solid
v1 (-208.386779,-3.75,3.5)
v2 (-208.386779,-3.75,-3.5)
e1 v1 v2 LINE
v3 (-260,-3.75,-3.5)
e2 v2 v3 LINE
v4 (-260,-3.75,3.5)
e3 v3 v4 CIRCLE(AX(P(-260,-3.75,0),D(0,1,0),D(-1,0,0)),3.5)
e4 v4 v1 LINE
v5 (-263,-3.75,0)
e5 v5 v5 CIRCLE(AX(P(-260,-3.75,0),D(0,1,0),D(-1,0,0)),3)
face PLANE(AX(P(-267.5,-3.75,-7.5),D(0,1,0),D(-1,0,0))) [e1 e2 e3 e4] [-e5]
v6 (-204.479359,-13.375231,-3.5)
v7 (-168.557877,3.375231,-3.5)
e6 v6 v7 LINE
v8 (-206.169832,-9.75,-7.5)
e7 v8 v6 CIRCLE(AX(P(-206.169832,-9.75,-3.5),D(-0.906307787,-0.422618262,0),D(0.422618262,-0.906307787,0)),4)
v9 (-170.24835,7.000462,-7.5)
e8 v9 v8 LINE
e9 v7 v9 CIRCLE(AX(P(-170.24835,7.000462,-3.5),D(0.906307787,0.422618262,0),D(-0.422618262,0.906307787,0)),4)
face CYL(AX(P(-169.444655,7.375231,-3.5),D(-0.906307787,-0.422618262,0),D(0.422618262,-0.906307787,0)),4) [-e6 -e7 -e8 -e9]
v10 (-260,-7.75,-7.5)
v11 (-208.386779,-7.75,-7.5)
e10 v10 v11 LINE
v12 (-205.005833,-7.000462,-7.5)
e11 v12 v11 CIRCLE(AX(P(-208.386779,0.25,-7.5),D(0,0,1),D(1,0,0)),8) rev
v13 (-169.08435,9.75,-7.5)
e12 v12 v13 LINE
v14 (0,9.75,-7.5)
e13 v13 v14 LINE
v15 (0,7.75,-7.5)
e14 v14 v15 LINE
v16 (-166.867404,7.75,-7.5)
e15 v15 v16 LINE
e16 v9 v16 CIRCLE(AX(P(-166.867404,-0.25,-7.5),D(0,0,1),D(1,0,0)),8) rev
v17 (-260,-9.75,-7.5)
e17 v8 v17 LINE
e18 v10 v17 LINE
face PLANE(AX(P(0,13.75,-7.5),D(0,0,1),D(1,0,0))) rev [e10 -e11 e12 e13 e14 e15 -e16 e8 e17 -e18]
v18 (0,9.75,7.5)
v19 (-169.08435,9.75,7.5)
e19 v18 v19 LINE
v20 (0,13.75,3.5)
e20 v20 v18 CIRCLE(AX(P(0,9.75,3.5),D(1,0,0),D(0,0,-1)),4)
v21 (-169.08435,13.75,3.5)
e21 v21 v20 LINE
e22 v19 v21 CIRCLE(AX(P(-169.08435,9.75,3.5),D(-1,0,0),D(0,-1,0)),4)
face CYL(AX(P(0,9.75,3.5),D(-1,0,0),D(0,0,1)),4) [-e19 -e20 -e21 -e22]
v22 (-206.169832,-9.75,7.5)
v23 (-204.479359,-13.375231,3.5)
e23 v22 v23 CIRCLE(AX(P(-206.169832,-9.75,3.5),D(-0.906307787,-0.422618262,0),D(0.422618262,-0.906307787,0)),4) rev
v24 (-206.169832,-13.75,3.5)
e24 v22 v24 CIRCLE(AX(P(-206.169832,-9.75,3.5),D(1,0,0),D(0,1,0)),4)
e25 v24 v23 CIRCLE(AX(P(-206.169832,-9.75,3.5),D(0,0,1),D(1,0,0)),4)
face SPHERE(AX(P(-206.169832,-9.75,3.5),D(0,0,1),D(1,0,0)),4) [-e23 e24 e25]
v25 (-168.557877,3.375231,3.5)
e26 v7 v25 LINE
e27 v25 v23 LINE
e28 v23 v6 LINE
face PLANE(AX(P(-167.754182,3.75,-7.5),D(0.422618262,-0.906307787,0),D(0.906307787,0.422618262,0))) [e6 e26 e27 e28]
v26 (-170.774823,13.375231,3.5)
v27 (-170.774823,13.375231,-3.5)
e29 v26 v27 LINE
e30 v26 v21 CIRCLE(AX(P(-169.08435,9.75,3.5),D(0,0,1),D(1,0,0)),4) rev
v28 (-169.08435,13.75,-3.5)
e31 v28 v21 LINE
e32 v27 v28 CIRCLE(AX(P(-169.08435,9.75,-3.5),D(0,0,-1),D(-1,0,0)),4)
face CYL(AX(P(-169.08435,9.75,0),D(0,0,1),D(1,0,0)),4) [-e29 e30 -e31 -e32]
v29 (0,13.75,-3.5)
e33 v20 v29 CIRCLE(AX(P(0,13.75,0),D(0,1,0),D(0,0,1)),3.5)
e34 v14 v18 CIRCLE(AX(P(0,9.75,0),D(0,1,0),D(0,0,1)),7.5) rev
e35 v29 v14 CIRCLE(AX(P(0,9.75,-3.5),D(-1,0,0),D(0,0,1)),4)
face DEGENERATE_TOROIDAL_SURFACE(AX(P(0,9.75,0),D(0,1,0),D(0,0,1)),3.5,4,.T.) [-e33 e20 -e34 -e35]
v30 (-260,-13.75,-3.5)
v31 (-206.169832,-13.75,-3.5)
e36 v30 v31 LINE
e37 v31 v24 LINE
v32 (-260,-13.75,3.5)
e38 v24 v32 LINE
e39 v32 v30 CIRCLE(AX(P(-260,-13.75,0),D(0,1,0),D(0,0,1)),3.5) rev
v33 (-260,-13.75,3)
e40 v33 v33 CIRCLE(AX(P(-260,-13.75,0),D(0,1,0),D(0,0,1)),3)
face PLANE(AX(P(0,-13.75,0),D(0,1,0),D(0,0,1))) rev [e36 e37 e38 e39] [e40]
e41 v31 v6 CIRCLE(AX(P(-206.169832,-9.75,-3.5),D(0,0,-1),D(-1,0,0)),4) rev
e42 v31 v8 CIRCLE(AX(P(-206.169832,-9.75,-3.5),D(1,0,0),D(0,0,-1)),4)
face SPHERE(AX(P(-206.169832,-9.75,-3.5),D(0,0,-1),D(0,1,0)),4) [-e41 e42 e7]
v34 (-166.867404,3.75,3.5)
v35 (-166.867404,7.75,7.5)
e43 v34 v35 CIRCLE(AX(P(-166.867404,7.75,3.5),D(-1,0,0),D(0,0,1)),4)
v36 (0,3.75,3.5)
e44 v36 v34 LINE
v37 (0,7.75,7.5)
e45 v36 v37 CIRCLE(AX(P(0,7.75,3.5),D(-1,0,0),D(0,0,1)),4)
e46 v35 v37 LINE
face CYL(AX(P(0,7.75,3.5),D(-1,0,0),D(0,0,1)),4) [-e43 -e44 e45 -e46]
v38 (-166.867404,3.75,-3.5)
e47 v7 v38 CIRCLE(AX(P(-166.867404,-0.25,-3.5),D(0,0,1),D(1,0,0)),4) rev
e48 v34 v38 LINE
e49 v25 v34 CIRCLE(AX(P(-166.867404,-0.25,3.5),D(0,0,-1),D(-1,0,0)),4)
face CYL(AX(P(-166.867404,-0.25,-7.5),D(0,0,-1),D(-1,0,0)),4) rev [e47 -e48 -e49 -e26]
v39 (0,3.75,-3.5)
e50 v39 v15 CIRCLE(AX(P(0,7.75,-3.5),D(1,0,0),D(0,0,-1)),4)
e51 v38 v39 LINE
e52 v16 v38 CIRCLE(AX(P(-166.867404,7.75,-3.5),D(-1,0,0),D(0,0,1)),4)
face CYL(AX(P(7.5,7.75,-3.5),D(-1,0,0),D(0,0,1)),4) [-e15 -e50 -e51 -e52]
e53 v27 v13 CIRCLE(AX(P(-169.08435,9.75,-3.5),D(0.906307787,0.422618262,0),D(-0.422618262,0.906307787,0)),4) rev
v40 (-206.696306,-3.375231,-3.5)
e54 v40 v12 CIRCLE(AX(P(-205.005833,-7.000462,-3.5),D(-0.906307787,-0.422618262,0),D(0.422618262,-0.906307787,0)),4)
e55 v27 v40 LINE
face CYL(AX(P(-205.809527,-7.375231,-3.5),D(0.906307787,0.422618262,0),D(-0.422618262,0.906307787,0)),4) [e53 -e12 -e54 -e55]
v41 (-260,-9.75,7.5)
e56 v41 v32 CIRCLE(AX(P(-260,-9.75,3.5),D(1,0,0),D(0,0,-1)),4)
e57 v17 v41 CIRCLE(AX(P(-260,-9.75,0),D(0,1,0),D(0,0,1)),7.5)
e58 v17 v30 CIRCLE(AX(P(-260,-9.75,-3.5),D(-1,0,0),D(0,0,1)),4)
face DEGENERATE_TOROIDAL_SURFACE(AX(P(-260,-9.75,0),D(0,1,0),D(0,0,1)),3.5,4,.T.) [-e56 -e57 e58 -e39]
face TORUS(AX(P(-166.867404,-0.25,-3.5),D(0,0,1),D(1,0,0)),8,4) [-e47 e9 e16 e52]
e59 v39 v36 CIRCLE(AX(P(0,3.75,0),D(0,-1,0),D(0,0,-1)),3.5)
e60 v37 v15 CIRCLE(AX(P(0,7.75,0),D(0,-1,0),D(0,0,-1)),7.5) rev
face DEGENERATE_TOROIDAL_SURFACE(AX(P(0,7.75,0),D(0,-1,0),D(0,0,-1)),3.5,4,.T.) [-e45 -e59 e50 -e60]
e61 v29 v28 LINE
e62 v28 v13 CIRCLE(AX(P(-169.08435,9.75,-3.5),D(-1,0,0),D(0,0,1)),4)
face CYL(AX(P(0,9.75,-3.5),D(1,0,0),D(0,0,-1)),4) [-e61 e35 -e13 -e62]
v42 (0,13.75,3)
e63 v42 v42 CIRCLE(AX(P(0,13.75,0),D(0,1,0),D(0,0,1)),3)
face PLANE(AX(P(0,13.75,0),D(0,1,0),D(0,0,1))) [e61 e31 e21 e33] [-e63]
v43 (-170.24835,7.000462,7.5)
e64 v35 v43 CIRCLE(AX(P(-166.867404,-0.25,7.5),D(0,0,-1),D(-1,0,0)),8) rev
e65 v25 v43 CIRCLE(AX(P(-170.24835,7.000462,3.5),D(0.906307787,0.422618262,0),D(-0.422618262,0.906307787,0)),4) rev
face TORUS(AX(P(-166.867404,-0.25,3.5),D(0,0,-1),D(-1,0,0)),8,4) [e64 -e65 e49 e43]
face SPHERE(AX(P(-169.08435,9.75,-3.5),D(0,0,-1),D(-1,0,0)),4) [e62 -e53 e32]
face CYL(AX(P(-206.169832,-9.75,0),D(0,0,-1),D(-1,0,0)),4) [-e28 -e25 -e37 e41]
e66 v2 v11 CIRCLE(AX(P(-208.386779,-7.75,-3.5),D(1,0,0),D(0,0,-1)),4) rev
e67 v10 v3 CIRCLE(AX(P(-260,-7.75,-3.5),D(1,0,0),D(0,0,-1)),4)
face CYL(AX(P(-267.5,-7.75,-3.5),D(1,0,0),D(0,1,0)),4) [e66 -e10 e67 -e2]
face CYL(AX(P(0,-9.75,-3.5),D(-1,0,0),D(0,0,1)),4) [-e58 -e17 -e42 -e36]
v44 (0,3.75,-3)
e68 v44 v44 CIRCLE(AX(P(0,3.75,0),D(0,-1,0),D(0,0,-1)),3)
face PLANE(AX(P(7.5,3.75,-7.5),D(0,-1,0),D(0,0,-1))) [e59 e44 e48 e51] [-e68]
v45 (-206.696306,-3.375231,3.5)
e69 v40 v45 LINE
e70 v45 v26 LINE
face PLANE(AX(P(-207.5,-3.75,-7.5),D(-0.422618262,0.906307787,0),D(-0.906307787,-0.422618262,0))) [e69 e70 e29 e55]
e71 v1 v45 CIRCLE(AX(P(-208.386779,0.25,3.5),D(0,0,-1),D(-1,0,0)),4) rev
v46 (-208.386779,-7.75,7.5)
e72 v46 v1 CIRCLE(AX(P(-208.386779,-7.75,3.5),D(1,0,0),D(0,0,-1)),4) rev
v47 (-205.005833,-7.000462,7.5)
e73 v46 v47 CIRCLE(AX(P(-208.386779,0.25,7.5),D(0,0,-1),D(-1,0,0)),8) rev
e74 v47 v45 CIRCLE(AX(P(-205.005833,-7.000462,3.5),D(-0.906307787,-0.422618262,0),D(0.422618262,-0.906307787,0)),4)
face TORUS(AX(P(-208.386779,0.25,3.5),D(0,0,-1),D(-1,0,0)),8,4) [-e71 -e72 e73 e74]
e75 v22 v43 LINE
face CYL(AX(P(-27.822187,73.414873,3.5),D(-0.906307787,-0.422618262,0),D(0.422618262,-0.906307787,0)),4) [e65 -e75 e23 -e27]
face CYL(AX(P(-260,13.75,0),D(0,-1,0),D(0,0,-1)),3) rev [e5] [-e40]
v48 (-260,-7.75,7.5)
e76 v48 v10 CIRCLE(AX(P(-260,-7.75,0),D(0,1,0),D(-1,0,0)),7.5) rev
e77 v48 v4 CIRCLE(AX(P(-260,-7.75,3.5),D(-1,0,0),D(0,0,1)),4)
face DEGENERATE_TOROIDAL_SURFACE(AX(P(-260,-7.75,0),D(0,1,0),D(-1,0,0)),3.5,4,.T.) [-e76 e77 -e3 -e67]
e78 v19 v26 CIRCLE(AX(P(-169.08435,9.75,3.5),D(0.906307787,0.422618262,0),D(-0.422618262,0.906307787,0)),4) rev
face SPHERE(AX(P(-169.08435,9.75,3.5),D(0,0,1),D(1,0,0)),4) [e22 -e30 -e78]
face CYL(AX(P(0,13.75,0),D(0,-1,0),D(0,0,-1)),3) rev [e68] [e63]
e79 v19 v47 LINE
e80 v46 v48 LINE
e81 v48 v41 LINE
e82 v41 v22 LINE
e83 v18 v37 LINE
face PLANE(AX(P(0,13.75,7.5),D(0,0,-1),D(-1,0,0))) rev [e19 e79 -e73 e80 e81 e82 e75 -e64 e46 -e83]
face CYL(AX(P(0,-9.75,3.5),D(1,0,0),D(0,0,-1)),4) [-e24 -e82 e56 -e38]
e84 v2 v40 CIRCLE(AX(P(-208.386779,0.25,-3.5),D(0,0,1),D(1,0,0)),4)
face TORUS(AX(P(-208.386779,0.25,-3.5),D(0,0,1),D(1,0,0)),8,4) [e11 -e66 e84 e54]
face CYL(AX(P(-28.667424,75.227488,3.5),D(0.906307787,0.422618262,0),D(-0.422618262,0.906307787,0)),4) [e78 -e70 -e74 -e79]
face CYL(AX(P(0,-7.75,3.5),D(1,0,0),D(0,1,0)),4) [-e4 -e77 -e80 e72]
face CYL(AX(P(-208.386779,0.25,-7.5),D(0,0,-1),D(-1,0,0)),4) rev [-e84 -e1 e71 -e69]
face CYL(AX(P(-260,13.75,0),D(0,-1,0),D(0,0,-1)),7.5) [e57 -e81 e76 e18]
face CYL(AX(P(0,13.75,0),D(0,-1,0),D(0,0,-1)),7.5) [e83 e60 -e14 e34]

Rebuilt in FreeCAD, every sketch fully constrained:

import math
import FreeCAD as App
import Part
import Sketcher
from FreeCAD import Vector
Q = App.Units.Quantity


def edges_at(feature, points):
    """Names of the edges that pass closest to the given points."""
    edges = feature.Shape.Edges
    near = lambda p: min(range(len(edges)), key=lambda i: edges[i].distToShape(Part.Vertex(*p))[0])
    return sorted({f"Edge{near(p) + 1}" for p in points})


def add_polygon(sketch, points):
    """Adds a closed chain of lines whose ends are joined by coincident constraints."""
    first, n = sketch.GeometryCount, len(points)
    for a, b in zip(points, points[1:] + points[:1]):
        sketch.addGeometry(Part.LineSegment(App.Vector(*a, 0), App.Vector(*b, 0)), False)
    for i in range(n):
        sketch.addConstraint(Sketcher.Constraint("Coincident", first + i, 2, first + (i + 1) % n, 1))

doc = App.newDocument("Part")
params = doc.addObject("Spreadsheet::Sheet", "Params")
for row, (alias, value) in enumerate([
    ("sketch1_diameter", "6 mm"),
    ("sketch1_radius", "7.5 mm"),
    ("sketch1_width", "260 mm"),
    ("pad1_length", "27.5 mm"),
    ("sketch2_width", "60 mm"),
    ("sketch2_height", "10 mm"),
    ("fillet_radius", "4 mm"),
], start=1):
    params.set(f"A{row}", alias)
    params.set(f"B{row}", "=" + value)
    params.setAlias(f"B{row}", alias)

body = doc.addObject("PartDesign::Body", "Body")

# Sketch on XZ plane
sketch1 = doc.addObject("Sketcher::SketchObject", "Sketch")
body.addObject(sketch1)
sketch1.AttachmentSupport = (doc.XZ_Plane, [""])
sketch1.MapMode = "FlatFace"
sketch1.addGeometry(Part.LineSegment(Vector(-260, 7.5, 0), Vector(0, 7.5, 0)), False)
sketch1.addGeometry(Part.ArcOfCircle(Part.Circle(Vector(0, 0, 0), Vector(0, 0, 1), 7.5), math.radians(-90), math.radians(90)), False)
sketch1.addGeometry(Part.LineSegment(Vector(0, -7.5, 0), Vector(-260, -7.5, 0)), False)
sketch1.addGeometry(Part.ArcOfCircle(Part.Circle(Vector(-260, 0, 0), Vector(0, 0, 1), 7.5), math.radians(90), math.radians(270)), False)
sketch1.addGeometry(Part.Circle(Vector(-260, 0, 0), Vector(0, 0, 1), 3), False)
sketch1.addGeometry(Part.Circle(Vector(0, 0, 0), Vector(0, 0, 1), 3), False)
sketch1.addConstraint(Sketcher.Constraint("Tangent", 0, 2, 1, 2))
sketch1.addConstraint(Sketcher.Constraint("Tangent", 1, 1, 2, 1))
sketch1.addConstraint(Sketcher.Constraint("Tangent", 2, 2, 3, 2))
sketch1.addConstraint(Sketcher.Constraint("Tangent", 3, 1, 0, 1))
sketch1.addConstraint(Sketcher.Constraint("Horizontal", 0))
sketch1.addConstraint(Sketcher.Constraint("Horizontal", 2))
sketch1.addConstraint(Sketcher.Constraint("Coincident", 1, 3, -1, 1))
sketch1.addConstraint(Sketcher.Constraint("Coincident", 5, 3, -1, 1))
sketch1.addConstraint(Sketcher.Constraint("Coincident", 4, 3, 3, 3))
sketch1.addConstraint(Sketcher.Constraint("Equal", 4, 5))
sketch1.addConstraint(Sketcher.Constraint("Diameter", 4, 6.0))
sketch1.addConstraint(Sketcher.Constraint("Radius", 1, 7.5))
sketch1.addConstraint(Sketcher.Constraint("DistanceX", 0, 1, 0, 2, 260.0))
sketch1.setExpression("Constraints[10]", "Params.sketch1_diameter")
sketch1.setExpression("Constraints[11]", "Params.sketch1_radius")
sketch1.setExpression("Constraints[12]", "Params.sketch1_width")
pad1 = doc.addObject("PartDesign::Pad", "Pad")
body.addObject(pad1)
pad1.Profile = sketch1
pad1.setExpression("Length", "Params.pad1_length")
pad1.Midplane = True

# Sketch on XY plane
sketch2 = doc.addObject("Sketcher::SketchObject", "Sketch001")
body.addObject(sketch2)
sketch2.AttachmentSupport = (doc.XY_Plane, [""])
sketch2.MapMode = "FlatFace"
add_polygon(sketch2, [(-296, -42), (36, -42), (36, 42), (-296, 42)])  # lines 0-3
add_polygon(sketch2, [(-208, -4), (-170, 14), (8, 14), (8, 4), (-168, 4), (-205, -14), (-268, -14), (-268, -4)])  # lines 4-11
sketch2.addConstraint(Sketcher.Constraint("Horizontal", 0))
sketch2.addConstraint(Sketcher.Constraint("Vertical", 1))
sketch2.addConstraint(Sketcher.Constraint("Horizontal", 2))
sketch2.addConstraint(Sketcher.Constraint("Vertical", 3))
sketch2.addConstraint(Sketcher.Constraint("Horizontal", 5))
sketch2.addConstraint(Sketcher.Constraint("Vertical", 6))
sketch2.addConstraint(Sketcher.Constraint("Horizontal", 7))
sketch2.addConstraint(Sketcher.Constraint("Horizontal", 9))
sketch2.addConstraint(Sketcher.Constraint("Vertical", 10))
sketch2.addConstraint(Sketcher.Constraint("Horizontal", 11))
sketch2.addConstraint(Sketcher.Constraint("Parallel", 4, 8))
sketch2.addConstraint(Sketcher.Constraint("Equal", 6, 10))
sketch2.addConstraint(Sketcher.Constraint("DistanceX", 11, 1, 11, 2, 60.0))
sketch2.addConstraint(Sketcher.Constraint("DistanceY", 6, 2, 6, 1, 10.0))
sketch2.addConstraint(Sketcher.Constraint("Angle", 4, Q("25 deg")))
sketch2.addConstraint(Sketcher.Constraint("DistanceX", -1, 1, 5, 2, 7.5))
sketch2.addConstraint(Sketcher.Constraint("DistanceX", 9, 2, -1, 1, 267.5))
sketch2.addConstraint(Sketcher.Constraint("DistanceY", 8, 2, 7, 2, 17.5))
sketch2.addConstraint(Sketcher.Constraint("DistanceX", 0, 1, 0, 2, 332.356))
sketch2.addConstraint(Sketcher.Constraint("DistanceY", 1, 1, 1, 2, 84.856))
sketch2.addConstraint(Sketcher.Constraint("DistanceY", -1, 1, 4, 2, 13.75))
sketch2.addConstraint(Sketcher.Constraint("DistanceX", -1, 1, 0, 2, 36.178))
sketch2.addConstraint(Sketcher.Constraint("DistanceY", 0, 2, -1, 1, 42.428))
sketch2.addConstraint(Sketcher.Constraint("DistanceX", 7, 2, 7, 1, 175.254182))
sketch2.setExpression("Constraints[24]", "Params.sketch2_width")
sketch2.setExpression("Constraints[25]", "Params.sketch2_height")
pocket1 = doc.addObject("PartDesign::Pocket", "Pocket")
body.addObject(pocket1)
pocket1.Profile = sketch2
pocket1.Type = "ThroughAll"
pocket1.Midplane = True
doc.recompute()

fillet = doc.addObject("PartDesign::Fillet", "Fillet")
body.addObject(fillet)
fillet.Base = (pocket1, edges_at(pocket1, [
    (-84.986, 13.75, 7.5),
    (-232.642, -13.75, -7.5),
    (-186.519, -5, -7.5),
    (-83.877, 3.75, -7.5),
    (-167.754, 3.75, 0),
    (-83.877, 3.75, 7.5),
    (7.5, 3.75, 0),
    (-207.5, -3.75, 0),
    (-233.75, -3.75, 7.5),
    (-267.5, -3.75, 0),
    (-188.736, 5, -7.5),
    (-233.75, -3.75, -7.5),
    (-169.971, 13.75, 0),
    (-188.736, 5, 7.5),
    (-205.283, -13.75, 0),
    (-186.519, -5, 7.5),
    (7.5, 13.75, 0),
    (-232.642, -13.75, 7.5),
    (-267.5, -13.75, 0),
    (-84.986, 13.75, -7.5),
]))
fillet.setExpression("Radius", "Params.fillet_radius")

doc.recompute()
